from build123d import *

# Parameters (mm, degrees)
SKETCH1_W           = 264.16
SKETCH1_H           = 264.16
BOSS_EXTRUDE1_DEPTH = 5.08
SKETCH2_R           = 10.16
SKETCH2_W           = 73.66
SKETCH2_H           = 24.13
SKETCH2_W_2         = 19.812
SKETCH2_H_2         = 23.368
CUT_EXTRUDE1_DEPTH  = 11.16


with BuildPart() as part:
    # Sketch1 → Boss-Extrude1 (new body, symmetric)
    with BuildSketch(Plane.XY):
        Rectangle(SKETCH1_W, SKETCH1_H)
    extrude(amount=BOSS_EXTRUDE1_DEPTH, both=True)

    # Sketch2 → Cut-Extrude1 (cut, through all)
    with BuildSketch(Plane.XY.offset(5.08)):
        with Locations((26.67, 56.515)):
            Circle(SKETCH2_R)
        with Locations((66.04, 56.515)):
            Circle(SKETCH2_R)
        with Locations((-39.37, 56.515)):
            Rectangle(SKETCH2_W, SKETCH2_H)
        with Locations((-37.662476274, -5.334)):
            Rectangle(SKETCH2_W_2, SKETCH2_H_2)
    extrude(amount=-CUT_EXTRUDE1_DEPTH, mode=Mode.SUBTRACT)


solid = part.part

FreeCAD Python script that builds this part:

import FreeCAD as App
import Part
import Sketcher

V = App.Vector
Q = App.Units.Quantity

doc = App.newDocument("Part")
body = doc.addObject("PartDesign::Body", "Body")

sketch1 = body.newObject("Sketcher::SketchObject", "Sketch")
sketch1.AttachmentSupport = (doc.getObject("XY_Plane"), [""])
sketch1.MapMode = "FlatFace"
sketch1.addGeometry(Part.LineSegment(V(-132, 132, 0), V(-132, -132, 0)), False)
sketch1.addGeometry(Part.LineSegment(V(-132, -132, 0), V(132, -132, 0)), False)
sketch1.addGeometry(Part.LineSegment(V(132, -132, 0), V(132, 132, 0)), False)
sketch1.addGeometry(Part.LineSegment(V(132, 132, 0), V(-132, 132, 0)), False)
sketch1.addConstraint(Sketcher.Constraint("Coincident", 0, 2, 1, 1))
sketch1.addConstraint(Sketcher.Constraint("Coincident", 1, 2, 2, 1))
sketch1.addConstraint(Sketcher.Constraint("Coincident", 2, 2, 3, 1))
sketch1.addConstraint(Sketcher.Constraint("Coincident", 3, 2, 0, 1))
sketch1.addConstraint(Sketcher.Constraint("Vertical", 0))
sketch1.addConstraint(Sketcher.Constraint("Horizontal", 1))
sketch1.addConstraint(Sketcher.Constraint("Vertical", 2))
sketch1.addConstraint(Sketcher.Constraint("Horizontal", 3))
sketch1.addConstraint(Sketcher.Constraint("Symmetric", 0, 2, 2, 2, -1, 1))
sketch1.addConstraint(Sketcher.Constraint("Equal", 3, 0))
sketch1.addConstraint(Sketcher.Constraint("DistanceX", 1, 1, 1, 2, Q("10.4 in")))
pad1 = body.newObject("PartDesign::Pad", "Pad")
pad1.Profile = sketch1
pad1.Length = Q("0.4 in")
pad1.Midplane = True

sketch2 = body.newObject("Sketcher::SketchObject", "Sketch001")
sketch2.AttachmentSupport = (doc.getObject("XY_Plane"), [""])
sketch2.MapMode = "FlatFace"
sketch2.AttachmentOffset = App.Placement(V(0, 0, 0.2 * 25.4), App.Rotation())
sketch2.addGeometry(Part.Circle(V(27, 57, 0), V(0, 0, 1), 10), False)
sketch2.addGeometry(Part.Circle(V(66, 57, 0), V(0, 0, 1), 10), False)
sketch2.addGeometry(Part.LineSegment(V(-76, 69, 0), V(-76, 44, 0)), False)
sketch2.addGeometry(Part.LineSegment(V(-76, 44, 0), V(-3, 44, 0)), False)
sketch2.addGeometry(Part.LineSegment(V(-3, 44, 0), V(-3, 69, 0)), False)
sketch2.addGeometry(Part.LineSegment(V(-3, 69, 0), V(-76, 69, 0)), False)
sketch2.addGeometry(Part.LineSegment(V(-48, 6, 0), V(-48, -17, 0)), False)
sketch2.addGeometry(Part.LineSegment(V(-48, -17, 0), V(-28, -17, 0)), False)
sketch2.addGeometry(Part.LineSegment(V(-28, -17, 0), V(-28, 6, 0)), False)
sketch2.addGeometry(Part.LineSegment(V(-28, 6, 0), V(-48, 6, 0)), False)
sketch2.addConstraint(Sketcher.Constraint("Coincident", 2, 2, 3, 1))
sketch2.addConstraint(Sketcher.Constraint("Coincident", 3, 2, 4, 1))
sketch2.addConstraint(Sketcher.Constraint("Coincident", 4, 2, 5, 1))
sketch2.addConstraint(Sketcher.Constraint("Coincident", 5, 2, 2, 1))
sketch2.addConstraint(Sketcher.Constraint("Coincident", 6, 2, 7, 1))
sketch2.addConstraint(Sketcher.Constraint("Coincident", 7, 2, 8, 1))
sketch2.addConstraint(Sketcher.Constraint("Coincident", 8, 2, 9, 1))
sketch2.addConstraint(Sketcher.Constraint("Coincident", 9, 2, 6, 1))
sketch2.addConstraint(Sketcher.Constraint("Vertical", 2))
sketch2.addConstraint(Sketcher.Constraint("Horizontal", 3))
sketch2.addConstraint(Sketcher.Constraint("Vertical", 4))
sketch2.addConstraint(Sketcher.Constraint("Horizontal", 5))
sketch2.addConstraint(Sketcher.Constraint("Vertical", 6))
sketch2.addConstraint(Sketcher.Constraint("Horizontal", 7))
sketch2.addConstraint(Sketcher.Constraint("Vertical", 8))
sketch2.addConstraint(Sketcher.Constraint("Horizontal", 9))
sketch2.addConstraint(Sketcher.Constraint("Equal", 0, 1))
sketch2.addConstraint(Sketcher.Constraint("Horizontal", 0, 3, 1, 3))
sketch2.addConstraint(Sketcher.Constraint("Diameter", 0, Q("0.8 in")))
sketch2.addConstraint(Sketcher.Constraint("DistanceX", 3, 1, 3, 2, Q("2.9 in")))
sketch2.addConstraint(Sketcher.Constraint("DistanceX", 2, 2, -1, 1, Q("3 in")))
sketch2.addConstraint(Sketcher.Constraint("DistanceX", 7, 1, 7, 2, Q("0.78 in")))
sketch2.addConstraint(Sketcher.Constraint("DistanceY", 2, 2, 2, 1, Q("0.95 in")))
sketch2.addConstraint(Sketcher.Constraint("DistanceY", 6, 2, 6, 1, Q("0.92 in")))
sketch2.addConstraint(Sketcher.Constraint("DistanceX", -1, 1, 1, 3, Q("2.6 in")))
sketch2.addConstraint(Sketcher.Constraint("DistanceY", -1, 1, 4, 2, Q("2.7 in")))
sketch2.addConstraint(Sketcher.Constraint("DistanceY", 8, 2, 3, 2, Q("1.5 in")))
sketch2.addConstraint(Sketcher.Constraint("DistanceX", -1, 1, 0, 3, Q("1.05 in")))
sketch2.addConstraint(Sketcher.Constraint("DistanceY", -1, 1, 0, 3, Q("2.225 in")))
sketch2.addConstraint(Sketcher.Constraint("DistanceX", 6, 2, -1, 1, 47.568476))
pocket1 = body.newObject("PartDesign::Pocket", "Pocket")
pocket1.Profile = sketch2
pocket1.Type = "ThroughAll"

doc.recompute()
